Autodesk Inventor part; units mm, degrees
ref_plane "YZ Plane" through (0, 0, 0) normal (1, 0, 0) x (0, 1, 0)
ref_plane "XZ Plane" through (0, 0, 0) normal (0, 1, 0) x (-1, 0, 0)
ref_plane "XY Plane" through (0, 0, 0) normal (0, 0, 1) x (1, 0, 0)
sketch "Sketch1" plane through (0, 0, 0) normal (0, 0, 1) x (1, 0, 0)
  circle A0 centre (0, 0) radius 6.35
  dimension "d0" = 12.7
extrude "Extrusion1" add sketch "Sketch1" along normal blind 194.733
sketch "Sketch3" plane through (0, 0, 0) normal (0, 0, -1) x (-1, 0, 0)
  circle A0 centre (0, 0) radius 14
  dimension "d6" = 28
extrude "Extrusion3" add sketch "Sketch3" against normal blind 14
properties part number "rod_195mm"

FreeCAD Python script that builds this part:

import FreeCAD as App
import Part
import Sketcher
Q = App.Units.Quantity

doc = App.newDocument("Part")
params = doc.addObject("Spreadsheet::Sheet", "Params")
for row, (alias, value) in enumerate([
    ("sketch1_diameter", "12.7 mm"),
    ("pad1_length", "194.733 mm"),
    ("sketch2_diameter", "28 mm"),
    ("pad2_length", "14 mm"),
], start=1):
    params.set(f"A{row}", alias)
    params.set(f"B{row}", "=" + value)
    params.setAlias(f"B{row}", alias)

body = doc.addObject("PartDesign::Body", "Body")

sketch1 = body.newObject("Sketcher::SketchObject", "Sketch")
sketch1.AttachmentSupport = (doc.getObject("XY_Plane"), [""])
sketch1.MapMode = "FlatFace"
sketch1.addGeometry(Part.Circle(App.Vector(0, 0, 0), App.Vector(0, 0, 1), 6.35), False)
sketch1.addConstraint(Sketcher.Constraint("Coincident", 0, 3, -1, 1))
sketch1.addConstraint(Sketcher.Constraint("Diameter", 0, Q("12.7 mm")))
sketch1.setExpression("Constraints[1]", "Params.sketch1_diameter")
pad1 = body.newObject("PartDesign::Pad", "Pad")
pad1.Profile = sketch1
pad1.setExpression("Length", "Params.pad1_length")

sketch2 = body.newObject("Sketcher::SketchObject", "Sketch001")
sketch2.AttachmentSupport = (doc.getObject("XY_Plane"), [""])
sketch2.MapMode = "FlatFace"
sketch2.addGeometry(Part.Circle(App.Vector(0, 0, 0), App.Vector(0, 0, 1), 14), False)
sketch2.addConstraint(Sketcher.Constraint("Coincident", 0, 3, -1, 1))
sketch2.addConstraint(Sketcher.Constraint("Diameter", 0, Q("28 mm")))
sketch2.setExpression("Constraints[1]", "Params.sketch2_diameter")
pad2 = body.newObject("PartDesign::Pad", "Pad001")
pad2.Profile = sketch2
pad2.setExpression("Length", "Params.pad2_length")

doc.recompute()
